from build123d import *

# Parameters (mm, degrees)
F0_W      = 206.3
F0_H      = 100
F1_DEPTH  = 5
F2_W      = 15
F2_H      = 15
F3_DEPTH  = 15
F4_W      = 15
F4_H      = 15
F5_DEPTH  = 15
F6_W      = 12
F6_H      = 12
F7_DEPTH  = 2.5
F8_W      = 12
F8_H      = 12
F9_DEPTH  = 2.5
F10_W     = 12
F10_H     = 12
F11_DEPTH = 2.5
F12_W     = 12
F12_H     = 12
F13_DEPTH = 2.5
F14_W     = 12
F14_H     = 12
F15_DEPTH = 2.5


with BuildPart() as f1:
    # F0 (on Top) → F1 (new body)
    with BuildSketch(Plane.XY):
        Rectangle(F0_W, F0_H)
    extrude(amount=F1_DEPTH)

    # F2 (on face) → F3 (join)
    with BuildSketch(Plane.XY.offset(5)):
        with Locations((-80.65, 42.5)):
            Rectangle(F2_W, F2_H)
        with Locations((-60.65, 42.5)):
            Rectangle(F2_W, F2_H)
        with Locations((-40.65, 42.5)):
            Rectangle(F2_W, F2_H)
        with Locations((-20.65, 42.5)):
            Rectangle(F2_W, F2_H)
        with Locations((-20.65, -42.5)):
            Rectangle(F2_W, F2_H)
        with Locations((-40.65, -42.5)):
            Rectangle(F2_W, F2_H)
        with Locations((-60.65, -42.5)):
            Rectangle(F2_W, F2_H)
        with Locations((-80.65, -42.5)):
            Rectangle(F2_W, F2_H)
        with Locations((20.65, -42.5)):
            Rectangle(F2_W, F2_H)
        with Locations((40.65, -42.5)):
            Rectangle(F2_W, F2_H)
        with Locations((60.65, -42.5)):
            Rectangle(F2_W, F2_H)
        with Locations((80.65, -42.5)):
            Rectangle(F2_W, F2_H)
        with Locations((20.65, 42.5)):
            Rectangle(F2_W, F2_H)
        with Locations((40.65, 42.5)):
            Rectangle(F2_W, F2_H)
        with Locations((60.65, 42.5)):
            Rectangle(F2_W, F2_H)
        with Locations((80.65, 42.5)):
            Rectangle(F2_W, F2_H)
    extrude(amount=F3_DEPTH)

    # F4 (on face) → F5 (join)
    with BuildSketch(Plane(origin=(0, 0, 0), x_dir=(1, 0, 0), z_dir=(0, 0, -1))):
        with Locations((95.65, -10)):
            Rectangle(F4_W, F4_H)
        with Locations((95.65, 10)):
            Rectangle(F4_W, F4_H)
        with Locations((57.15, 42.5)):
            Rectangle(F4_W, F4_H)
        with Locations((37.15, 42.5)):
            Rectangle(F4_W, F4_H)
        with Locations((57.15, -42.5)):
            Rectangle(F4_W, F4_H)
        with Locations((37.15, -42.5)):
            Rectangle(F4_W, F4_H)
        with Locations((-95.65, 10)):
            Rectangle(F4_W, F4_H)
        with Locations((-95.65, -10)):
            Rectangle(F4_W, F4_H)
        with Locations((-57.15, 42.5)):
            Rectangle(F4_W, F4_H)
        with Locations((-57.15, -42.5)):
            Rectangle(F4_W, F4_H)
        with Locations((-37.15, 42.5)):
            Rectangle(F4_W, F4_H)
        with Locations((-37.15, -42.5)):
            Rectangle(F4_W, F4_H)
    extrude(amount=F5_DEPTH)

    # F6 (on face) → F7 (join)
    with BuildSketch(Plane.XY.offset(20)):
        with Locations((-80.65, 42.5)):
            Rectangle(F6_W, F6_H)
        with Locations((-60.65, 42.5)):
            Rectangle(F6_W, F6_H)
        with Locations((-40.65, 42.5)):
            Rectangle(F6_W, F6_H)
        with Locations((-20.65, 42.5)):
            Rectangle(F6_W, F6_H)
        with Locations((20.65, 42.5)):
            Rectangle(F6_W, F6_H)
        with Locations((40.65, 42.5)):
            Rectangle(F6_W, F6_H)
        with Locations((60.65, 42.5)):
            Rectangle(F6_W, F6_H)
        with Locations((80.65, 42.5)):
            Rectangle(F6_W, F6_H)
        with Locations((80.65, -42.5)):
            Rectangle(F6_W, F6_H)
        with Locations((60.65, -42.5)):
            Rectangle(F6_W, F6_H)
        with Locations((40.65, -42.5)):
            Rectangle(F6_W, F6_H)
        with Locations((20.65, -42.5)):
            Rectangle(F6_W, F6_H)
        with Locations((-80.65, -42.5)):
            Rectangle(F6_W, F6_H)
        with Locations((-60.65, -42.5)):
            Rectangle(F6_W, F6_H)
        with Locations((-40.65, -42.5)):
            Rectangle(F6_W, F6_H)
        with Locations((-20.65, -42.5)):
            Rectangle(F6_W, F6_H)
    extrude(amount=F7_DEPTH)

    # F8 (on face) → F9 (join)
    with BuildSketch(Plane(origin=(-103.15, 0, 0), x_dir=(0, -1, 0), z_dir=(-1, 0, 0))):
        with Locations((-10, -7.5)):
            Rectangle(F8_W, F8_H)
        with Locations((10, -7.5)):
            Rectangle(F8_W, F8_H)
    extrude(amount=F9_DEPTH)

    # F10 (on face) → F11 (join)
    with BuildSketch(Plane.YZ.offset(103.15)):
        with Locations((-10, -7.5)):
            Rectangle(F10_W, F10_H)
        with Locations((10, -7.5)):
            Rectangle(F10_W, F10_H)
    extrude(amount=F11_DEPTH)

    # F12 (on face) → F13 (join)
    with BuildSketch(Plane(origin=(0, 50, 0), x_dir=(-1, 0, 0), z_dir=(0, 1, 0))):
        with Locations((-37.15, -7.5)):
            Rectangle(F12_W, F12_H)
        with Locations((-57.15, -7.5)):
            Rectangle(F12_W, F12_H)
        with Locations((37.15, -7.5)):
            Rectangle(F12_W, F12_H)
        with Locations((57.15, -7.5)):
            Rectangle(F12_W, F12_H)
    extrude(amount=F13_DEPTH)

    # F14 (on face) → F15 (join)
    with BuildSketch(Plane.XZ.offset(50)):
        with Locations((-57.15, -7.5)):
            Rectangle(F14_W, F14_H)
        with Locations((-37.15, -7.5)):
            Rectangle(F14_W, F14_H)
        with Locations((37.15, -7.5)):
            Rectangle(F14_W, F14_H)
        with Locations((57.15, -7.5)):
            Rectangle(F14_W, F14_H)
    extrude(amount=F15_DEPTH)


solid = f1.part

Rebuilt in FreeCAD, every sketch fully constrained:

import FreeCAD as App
import Part
import Sketcher
Q = App.Units.Quantity

doc = App.newDocument("Part")
body = doc.addObject("PartDesign::Body", "Body")

sketch1 = body.newObject("Sketcher::SketchObject", "Sketch")
sketch1.AttachmentSupport = (doc.getObject("XY_Plane"), [""])
sketch1.MapMode = "FlatFace"
sketch1.addGeometry([
    Part.LineSegment(App.Vector(-103, 50, 0), App.Vector(-103, -50, 0)),
    Part.LineSegment(App.Vector(-103, -50, 0), App.Vector(103, -50, 0)),
    Part.LineSegment(App.Vector(103, -50, 0), App.Vector(103, 50, 0)),
    Part.LineSegment(App.Vector(103, 50, 0), App.Vector(-103, 50, 0)),
], False)
sketch1.addConstraint([
    Sketcher.Constraint("Coincident", 0, 2, 1, 1),
    Sketcher.Constraint("Coincident", 1, 2, 2, 1),
    Sketcher.Constraint("Coincident", 2, 2, 3, 1),
    Sketcher.Constraint("Coincident", 3, 2, 0, 1),
    Sketcher.Constraint("Vertical", 0),
    Sketcher.Constraint("Horizontal", 1),
    Sketcher.Constraint("Vertical", 2),
    Sketcher.Constraint("Horizontal", 3),
    Sketcher.Constraint("Symmetric", 0, 2, 2, 2, -1, 1),
    Sketcher.Constraint("DistanceY", 0, 2, 0, 1, Q("100 mm")),
    Sketcher.Constraint("DistanceX", 1, 1, 1, 2, Q("206.3 mm")),
])
pad1 = body.newObject("PartDesign::Pad", "Pad")
pad1.Profile = sketch1
pad1.Length = 5

sketch2 = body.newObject("Sketcher::SketchObject", "Sketch001")
sketch2.AttachmentSupport = (doc.getObject("XY_Plane"), [""])
sketch2.MapMode = "FlatFace"
sketch2.AttachmentOffset = App.Placement(App.Vector(0, 0, 5), App.Rotation())
sketch2.addGeometry([
    Part.LineSegment(App.Vector(-88, 50, 0), App.Vector(-88, 35, 0)),
    Part.LineSegment(App.Vector(-88, 35, 0), App.Vector(-73, 35, 0)),
    Part.LineSegment(App.Vector(-73, 35, 0), App.Vector(-73, 50, 0)),
    Part.LineSegment(App.Vector(-73, 50, 0), App.Vector(-88, 50, 0)),
    Part.LineSegment(App.Vector(-68, 50, 0), App.Vector(-68, 35, 0)),
    Part.LineSegment(App.Vector(-68, 35, 0), App.Vector(-53, 35, 0)),
    Part.LineSegment(App.Vector(-53, 35, 0), App.Vector(-53, 50, 0)),
    Part.LineSegment(App.Vector(-53, 50, 0), App.Vector(-68, 50, 0)),
    Part.LineSegment(App.Vector(-48, 50, 0), App.Vector(-48, 35, 0)),
    Part.LineSegment(App.Vector(-48, 35, 0), App.Vector(-33, 35, 0)),
    Part.LineSegment(App.Vector(-33, 35, 0), App.Vector(-33, 50, 0)),
    Part.LineSegment(App.Vector(-33, 50, 0), App.Vector(-48, 50, 0)),
    Part.LineSegment(App.Vector(-28, 50, 0), App.Vector(-28, 35, 0)),
    Part.LineSegment(App.Vector(-28, 35, 0), App.Vector(-13, 35, 0)),
    Part.LineSegment(App.Vector(-13, 35, 0), App.Vector(-13, 50, 0)),
    Part.LineSegment(App.Vector(-13, 50, 0), App.Vector(-28, 50, 0)),
    Part.LineSegment(App.Vector(-28, -35, 0), App.Vector(-28, -50, 0)),
    Part.LineSegment(App.Vector(-28, -50, 0), App.Vector(-13, -50, 0)),
    Part.LineSegment(App.Vector(-13, -50, 0), App.Vector(-13, -35, 0)),
    Part.LineSegment(App.Vector(-13, -35, 0), App.Vector(-28, -35, 0)),
    Part.LineSegment(App.Vector(-48, -35, 0), App.Vector(-48, -50, 0)),
    Part.LineSegment(App.Vector(-48, -50, 0), App.Vector(-33, -50, 0)),
    Part.LineSegment(App.Vector(-33, -50, 0), App.Vector(-33, -35, 0)),
    Part.LineSegment(App.Vector(-33, -35, 0), App.Vector(-48, -35, 0)),
    Part.LineSegment(App.Vector(-68, -35, 0), App.Vector(-68, -50, 0)),
    Part.LineSegment(App.Vector(-68, -50, 0), App.Vector(-53, -50, 0)),
    Part.LineSegment(App.Vector(-53, -50, 0), App.Vector(-53, -35, 0)),
    Part.LineSegment(App.Vector(-53, -35, 0), App.Vector(-68, -35, 0)),
    Part.LineSegment(App.Vector(-88, -35, 0), App.Vector(-88, -50, 0)),
    Part.LineSegment(App.Vector(-88, -50, 0), App.Vector(-73, -50, 0)),
    Part.LineSegment(App.Vector(-73, -50, 0), App.Vector(-73, -35, 0)),
    Part.LineSegment(App.Vector(-73, -35, 0), App.Vector(-88, -35, 0)),
    Part.LineSegment(App.Vector(13, -35, 0), App.Vector(13, -50, 0)),
    Part.LineSegment(App.Vector(13, -50, 0), App.Vector(28, -50, 0)),
    Part.LineSegment(App.Vector(28, -50, 0), App.Vector(28, -35, 0)),
    Part.LineSegment(App.Vector(28, -35, 0), App.Vector(13, -35, 0)),
    Part.LineSegment(App.Vector(33, -35, 0), App.Vector(33, -50, 0)),
    Part.LineSegment(App.Vector(33, -50, 0), App.Vector(48, -50, 0)),
    Part.LineSegment(App.Vector(48, -50, 0), App.Vector(48, -35, 0)),
    Part.LineSegment(App.Vector(48, -35, 0), App.Vector(33, -35, 0)),
    Part.LineSegment(App.Vector(53, -35, 0), App.Vector(53, -50, 0)),
    Part.LineSegment(App.Vector(53, -50, 0), App.Vector(68, -50, 0)),
    Part.LineSegment(App.Vector(68, -50, 0), App.Vector(68, -35, 0)),
    Part.LineSegment(App.Vector(68, -35, 0), App.Vector(53, -35, 0)),
    Part.LineSegment(App.Vector(73, -35, 0), App.Vector(73, -50, 0)),
    Part.LineSegment(App.Vector(73, -50, 0), App.Vector(88, -50, 0)),
    Part.LineSegment(App.Vector(88, -50, 0), App.Vector(88, -35, 0)),
    Part.LineSegment(App.Vector(88, -35, 0), App.Vector(73, -35, 0)),
    Part.LineSegment(App.Vector(13, 50, 0), App.Vector(13, 35, 0)),
    Part.LineSegment(App.Vector(13, 35, 0), App.Vector(28, 35, 0)),
    Part.LineSegment(App.Vector(28, 35, 0), App.Vector(28, 50, 0)),
    Part.LineSegment(App.Vector(28, 50, 0), App.Vector(13, 50, 0)),
    Part.LineSegment(App.Vector(33, 50, 0), App.Vector(33, 35, 0)),
    Part.LineSegment(App.Vector(33, 35, 0), App.Vector(48, 35, 0)),
    Part.LineSegment(App.Vector(48, 35, 0), App.Vector(48, 50, 0)),
    Part.LineSegment(App.Vector(48, 50, 0), App.Vector(33, 50, 0)),
    Part.LineSegment(App.Vector(53, 50, 0), App.Vector(53, 35, 0)),
    Part.LineSegment(App.Vector(53, 35, 0), App.Vector(68, 35, 0)),
    Part.LineSegment(App.Vector(68, 35, 0), App.Vector(68, 50, 0)),
    Part.LineSegment(App.Vector(68, 50, 0), App.Vector(53, 50, 0)),
    Part.LineSegment(App.Vector(73, 50, 0), App.Vector(73, 35, 0)),
    Part.LineSegment(App.Vector(73, 35, 0), App.Vector(88, 35, 0)),
    Part.LineSegment(App.Vector(88, 35, 0), App.Vector(88, 50, 0)),
    Part.LineSegment(App.Vector(88, 50, 0), App.Vector(73, 50, 0)),
], False)
sketch2.addConstraint([
    Sketcher.Constraint("Coincident", 0, 2, 1, 1),
    Sketcher.Constraint("Coincident", 1, 2, 2, 1),
    Sketcher.Constraint("Coincident", 2, 2, 3, 1),
    Sketcher.Constraint("Coincident", 3, 2, 0, 1),
    Sketcher.Constraint("Coincident", 4, 2, 5, 1),
    Sketcher.Constraint("Coincident", 5, 2, 6, 1),
    Sketcher.Constraint("Coincident", 6, 2, 7, 1),
    Sketcher.Constraint("Coincident", 7, 2, 4, 1),
    Sketcher.Constraint("Coincident", 8, 2, 9, 1),
    Sketcher.Constraint("Coincident", 9, 2, 10, 1),
    Sketcher.Constraint("Coincident", 10, 2, 11, 1),
    Sketcher.Constraint("Coincident", 11, 2, 8, 1),
    Sketcher.Constraint("Coincident", 12, 2, 13, 1),
    Sketcher.Constraint("Coincident", 13, 2, 14, 1),
    Sketcher.Constraint("Coincident", 14, 2, 15, 1),
    Sketcher.Constraint("Coincident", 15, 2, 12, 1),
    Sketcher.Constraint("Coincident", 16, 2, 17, 1),
    Sketcher.Constraint("Coincident", 17, 2, 18, 1),
    Sketcher.Constraint("Coincident", 18, 2, 19, 1),
    Sketcher.Constraint("Coincident", 19, 2, 16, 1),
    Sketcher.Constraint("Coincident", 20, 2, 21, 1),
    Sketcher.Constraint("Coincident", 21, 2, 22, 1),
    Sketcher.Constraint("Coincident", 22, 2, 23, 1),
    Sketcher.Constraint("Coincident", 23, 2, 20, 1),
    Sketcher.Constraint("Coincident", 24, 2, 25, 1),
    Sketcher.Constraint("Coincident", 25, 2, 26, 1),
    Sketcher.Constraint("Coincident", 26, 2, 27, 1),
    Sketcher.Constraint("Coincident", 27, 2, 24, 1),
    Sketcher.Constraint("Coincident", 28, 2, 29, 1),
    Sketcher.Constraint("Coincident", 29, 2, 30, 1),
    Sketcher.Constraint("Coincident", 30, 2, 31, 1),
    Sketcher.Constraint("Coincident", 31, 2, 28, 1),
    Sketcher.Constraint("Coincident", 32, 2, 33, 1),
    Sketcher.Constraint("Coincident", 33, 2, 34, 1),
    Sketcher.Constraint("Coincident", 34, 2, 35, 1),
    Sketcher.Constraint("Coincident", 35, 2, 32, 1),
    Sketcher.Constraint("Coincident", 36, 2, 37, 1),
    Sketcher.Constraint("Coincident", 37, 2, 38, 1),
    Sketcher.Constraint("Coincident", 38, 2, 39, 1),
    Sketcher.Constraint("Coincident", 39, 2, 36, 1),
    Sketcher.Constraint("Coincident", 40, 2, 41, 1),
    Sketcher.Constraint("Coincident", 41, 2, 42, 1),
    Sketcher.Constraint("Coincident", 42, 2, 43, 1),
    Sketcher.Constraint("Coincident", 43, 2, 40, 1),
    Sketcher.Constraint("Coincident", 44, 2, 45, 1),
    Sketcher.Constraint("Coincident", 45, 2, 46, 1),
    Sketcher.Constraint("Coincident", 46, 2, 47, 1),
    Sketcher.Constraint("Coincident", 47, 2, 44, 1),
    Sketcher.Constraint("Coincident", 48, 2, 49, 1),
    Sketcher.Constraint("Coincident", 49, 2, 50, 1),
    Sketcher.Constraint("Coincident", 50, 2, 51, 1),
    Sketcher.Constraint("Coincident", 51, 2, 48, 1),
    Sketcher.Constraint("Coincident", 52, 2, 53, 1),
    Sketcher.Constraint("Coincident", 53, 2, 54, 1),
    Sketcher.Constraint("Coincident", 54, 2, 55, 1),
    Sketcher.Constraint("Coincident", 55, 2, 52, 1),
    Sketcher.Constraint("Coincident", 56, 2, 57, 1),
    Sketcher.Constraint("Coincident", 57, 2, 58, 1),
    Sketcher.Constraint("Coincident", 58, 2, 59, 1),
    Sketcher.Constraint("Coincident", 59, 2, 56, 1),
    Sketcher.Constraint("Coincident", 60, 2, 61, 1),
    Sketcher.Constraint("Coincident", 61, 2, 62, 1),
    Sketcher.Constraint("Coincident", 62, 2, 63, 1),
    Sketcher.Constraint("Coincident", 63, 2, 60, 1),
    Sketcher.Constraint("Vertical", 0),
    Sketcher.Constraint("Horizontal", 1),
    Sketcher.Constraint("Vertical", 2),
    Sketcher.Constraint("Horizontal", 3),
    Sketcher.Constraint("Vertical", 4),
    Sketcher.Constraint("Horizontal", 5),
    Sketcher.Constraint("Vertical", 6),
    Sketcher.Constraint("Horizontal", 7),
    Sketcher.Constraint("Vertical", 8),
    Sketcher.Constraint("Horizontal", 9),
    Sketcher.Constraint("Vertical", 10),
    Sketcher.Constraint("Horizontal", 11),
    Sketcher.Constraint("Vertical", 12),
    Sketcher.Constraint("Horizontal", 13),
    Sketcher.Constraint("Vertical", 14),
    Sketcher.Constraint("Horizontal", 15),
    Sketcher.Constraint("Vertical", 16),
    Sketcher.Constraint("Horizontal", 17),
    Sketcher.Constraint("Vertical", 18),
    Sketcher.Constraint("Horizontal", 19),
    Sketcher.Constraint("Vertical", 20),
    Sketcher.Constraint("Horizontal", 21),
    Sketcher.Constraint("Vertical", 22),
    Sketcher.Constraint("Horizontal", 23),
    Sketcher.Constraint("Vertical", 24),
    Sketcher.Constraint("Horizontal", 25),
    Sketcher.Constraint("Vertical", 26),
    Sketcher.Constraint("Horizontal", 27),
    Sketcher.Constraint("Vertical", 28),
    Sketcher.Constraint("Horizontal", 29),
    Sketcher.Constraint("Vertical", 30),
    Sketcher.Constraint("Horizontal", 31),
    Sketcher.Constraint("Vertical", 32),
    Sketcher.Constraint("Horizontal", 33),
    Sketcher.Constraint("Vertical", 34),
    Sketcher.Constraint("Horizontal", 35),
    Sketcher.Constraint("Vertical", 36),
    Sketcher.Constraint("Horizontal", 37),
    Sketcher.Constraint("Vertical", 38),
    Sketcher.Constraint("Horizontal", 39),
    Sketcher.Constraint("Vertical", 40),
    Sketcher.Constraint("Horizontal", 41),
    Sketcher.Constraint("Vertical", 42),
    Sketcher.Constraint("Horizontal", 43),
    Sketcher.Constraint("Vertical", 44),
    Sketcher.Constraint("Horizontal", 45),
    Sketcher.Constraint("Vertical", 46),
    Sketcher.Constraint("Horizontal", 47),
    Sketcher.Constraint("Vertical", 48),
    Sketcher.Constraint("Horizontal", 49),
    Sketcher.Constraint("Vertical", 50),
    Sketcher.Constraint("Horizontal", 51),
    Sketcher.Constraint("Vertical", 52),
    Sketcher.Constraint("Horizontal", 53),
    Sketcher.Constraint("Vertical", 54),
    Sketcher.Constraint("Horizontal", 55),
    Sketcher.Constraint("Vertical", 56),
    Sketcher.Constraint("Horizontal", 57),
    Sketcher.Constraint("Vertical", 58),
    Sketcher.Constraint("Horizontal", 59),
    Sketcher.Constraint("Vertical", 60),
    Sketcher.Constraint("Horizontal", 61),
    Sketcher.Constraint("Vertical", 62),
    Sketcher.Constraint("Horizontal", 63),
    Sketcher.Constraint("Symmetric", 14, 2, 32, 2, -1, 1),
    Sketcher.Constraint("Symmetric", 12, 2, 34, 2, -1, 1),
    Sketcher.Constraint("Symmetric", 10, 2, 36, 2, -1, 1),
    Sketcher.Constraint("Symmetric", 8, 2, 38, 2, -1, 1),
    Sketcher.Constraint("Symmetric", 6, 2, 40, 2, -1, 1),
    Sketcher.Constraint("Symmetric", 4, 2, 42, 2, -1, 1),
    Sketcher.Constraint("Symmetric", 2, 2, 44, 2, -1, 1),
    Sketcher.Constraint("Symmetric", 0, 2, 46, 2, -1, 1),
    Sketcher.Constraint("Symmetric", 18, 2, 48, 2, -1, 1),
    Sketcher.Constraint("Symmetric", 16, 2, 50, 2, -1, 1),
    Sketcher.Constraint("Symmetric", 22, 2, 52, 2, -1, 1),
    Sketcher.Constraint("Symmetric", 20, 2, 54, 2, -1, 1),
    Sketcher.Constraint("Symmetric", 26, 2, 56, 2, -1, 1),
    Sketcher.Constraint("Symmetric", 24, 2, 58, 2, -1, 1),
    Sketcher.Constraint("Symmetric", 30, 2, 60, 2, -1, 1),
    Sketcher.Constraint("Symmetric", 28, 2, 62, 2, -1, 1),
    Sketcher.Constraint("Symmetric", 17, 2, 32, 2, -2),
    Sketcher.Constraint("Symmetric", 19, 2, 34, 2, -2),
    Sketcher.Constraint("Symmetric", 21, 2, 36, 2, -2),
    Sketcher.Constraint("Symmetric", 23, 2, 38, 2, -2),
    Sketcher.Constraint("Symmetric", 25, 2, 40, 2, -2),
    Sketcher.Constraint("Symmetric", 27, 2, 42, 2, -2),
    Sketcher.Constraint("Symmetric", 29, 2, 44, 2, -2),
    Sketcher.Constraint("Symmetric", 31, 2, 46, 2, -2),
    Sketcher.Constraint("Horizontal", 1, 2, 4, 2),
    Sketcher.Constraint("Horizontal", 3, 2, 6, 2),
    Sketcher.Constraint("Horizontal", 5, 2, 8, 2),
    Sketcher.Constraint("Horizontal", 7, 2, 10, 2),
    Sketcher.Constraint("Horizontal", 9, 2, 12, 2),
    Sketcher.Constraint("Horizontal", 11, 2, 14, 2),
    Sketcher.Constraint("Equal", 3, 5),
    Sketcher.Constraint("Equal", 7, 9),
    Sketcher.Constraint("Equal", 11, 13),
    Sketcher.Constraint("Equal", 63, 0),
    Sketcher.Constraint("DistanceX", 1, 1, 1, 2, Q("15 mm")),
    Sketcher.Constraint("DistanceY", -1, 1, 0, 2, Q("35 mm")),
    Sketcher.Constraint("DistanceX", 0, 2, -1, 1, Q("88.15 mm")),
    Sketcher.Constraint("DistanceX", 4, 2, -1, 1, Q("68.15 mm")),
    Sketcher.Constraint("DistanceX", 8, 2, -1, 1, Q("48.15 mm")),
    Sketcher.Constraint("DistanceX", 12, 2, -1, 1, Q("28.15 mm")),
])
pad2 = body.newObject("PartDesign::Pad", "Pad001")
pad2.Profile = sketch2
pad2.Length = 15

sketch3 = body.newObject("Sketcher::SketchObject", "Sketch002")
sketch3.AttachmentSupport = (doc.getObject("XY_Plane"), [""])
sketch3.MapMode = "FlatFace"
sketch3.addGeometry([
    Part.LineSegment(App.Vector(88, 2, 0), App.Vector(88, 18, 0)),
    Part.LineSegment(App.Vector(88, 18, 0), App.Vector(103, 18, 0)),
    Part.LineSegment(App.Vector(103, 18, 0), App.Vector(103, 2, 0)),
    Part.LineSegment(App.Vector(103, 2, 0), App.Vector(88, 2, 0)),
    Part.LineSegment(App.Vector(88, -18, 0), App.Vector(88, -2, 0)),
    Part.LineSegment(App.Vector(88, -2, 0), App.Vector(103, -2, 0)),
    Part.LineSegment(App.Vector(103, -2, 0), App.Vector(103, -18, 0)),
    Part.LineSegment(App.Vector(103, -18, 0), App.Vector(88, -18, 0)),
    Part.LineSegment(App.Vector(50, -50, 0), App.Vector(50, -35, 0)),
    Part.LineSegment(App.Vector(50, -35, 0), App.Vector(65, -35, 0)),
    Part.LineSegment(App.Vector(65, -35, 0), App.Vector(65, -50, 0)),
    Part.LineSegment(App.Vector(65, -50, 0), App.Vector(50, -50, 0)),
    Part.LineSegment(App.Vector(30, -50, 0), App.Vector(30, -35, 0)),
    Part.LineSegment(App.Vector(30, -35, 0), App.Vector(45, -35, 0)),
    Part.LineSegment(App.Vector(45, -35, 0), App.Vector(45, -50, 0)),
    Part.LineSegment(App.Vector(45, -50, 0), App.Vector(30, -50, 0)),
    Part.LineSegment(App.Vector(50, 35, 0), App.Vector(50, 50, 0)),
    Part.LineSegment(App.Vector(50, 50, 0), App.Vector(65, 50, 0)),
    Part.LineSegment(App.Vector(65, 50, 0), App.Vector(65, 35, 0)),
    Part.LineSegment(App.Vector(65, 35, 0), App.Vector(50, 35, 0)),
    Part.LineSegment(App.Vector(30, 35, 0), App.Vector(30, 50, 0)),
    Part.LineSegment(App.Vector(30, 50, 0), App.Vector(45, 50, 0)),
    Part.LineSegment(App.Vector(45, 50, 0), App.Vector(45, 35, 0)),
    Part.LineSegment(App.Vector(45, 35, 0), App.Vector(30, 35, 0)),
    Part.LineSegment(App.Vector(-103, -18, 0), App.Vector(-103, -2, 0)),
    Part.LineSegment(App.Vector(-103, -2, 0), App.Vector(-88, -2, 0)),
    Part.LineSegment(App.Vector(-88, -2, 0), App.Vector(-88, -18, 0)),
    Part.LineSegment(App.Vector(-88, -18, 0), App.Vector(-103, -18, 0)),
    Part.LineSegment(App.Vector(-103, 2, 0), App.Vector(-103, 18, 0)),
    Part.LineSegment(App.Vector(-103, 18, 0), App.Vector(-88, 18, 0)),
    Part.LineSegment(App.Vector(-88, 18, 0), App.Vector(-88, 2, 0)),
    Part.LineSegment(App.Vector(-88, 2, 0), App.Vector(-103, 2, 0)),
    Part.LineSegment(App.Vector(-65, -50, 0), App.Vector(-65, -35, 0)),
    Part.LineSegment(App.Vector(-65, -35, 0), App.Vector(-50, -35, 0)),
    Part.LineSegment(App.Vector(-50, -35, 0), App.Vector(-50, -50, 0)),
    Part.LineSegment(App.Vector(-50, -50, 0), App.Vector(-65, -50, 0)),
    Part.LineSegment(App.Vector(-65, 35, 0), App.Vector(-65, 50, 0)),
    Part.LineSegment(App.Vector(-65, 50, 0), App.Vector(-50, 50, 0)),
    Part.LineSegment(App.Vector(-50, 50, 0), App.Vector(-50, 35, 0)),
    Part.LineSegment(App.Vector(-50, 35, 0), App.Vector(-65, 35, 0)),
    Part.LineSegment(App.Vector(-45, -50, 0), App.Vector(-45, -35, 0)),
    Part.LineSegment(App.Vector(-45, -35, 0), App.Vector(-30, -35, 0)),
    Part.LineSegment(App.Vector(-30, -35, 0), App.Vector(-30, -50, 0)),
    Part.LineSegment(App.Vector(-30, -50, 0), App.Vector(-45, -50, 0)),
    Part.LineSegment(App.Vector(-45, 35, 0), App.Vector(-45, 50, 0)),
    Part.LineSegment(App.Vector(-45, 50, 0), App.Vector(-30, 50, 0)),
    Part.LineSegment(App.Vector(-30, 50, 0), App.Vector(-30, 35, 0)),
    Part.LineSegment(App.Vector(-30, 35, 0), App.Vector(-45, 35, 0)),
], False)
sketch3.addConstraint([
    Sketcher.Constraint("Coincident", 0, 2, 1, 1),
    Sketcher.Constraint("Coincident", 1, 2, 2, 1),
    Sketcher.Constraint("Coincident", 2, 2, 3, 1),
    Sketcher.Constraint("Coincident", 3, 2, 0, 1),
    Sketcher.Constraint("Coincident", 4, 2, 5, 1),
    Sketcher.Constraint("Coincident", 5, 2, 6, 1),
    Sketcher.Constraint("Coincident", 6, 2, 7, 1),
    Sketcher.Constraint("Coincident", 7, 2, 4, 1),
    Sketcher.Constraint("Coincident", 8, 2, 9, 1),
    Sketcher.Constraint("Coincident", 9, 2, 10, 1),
    Sketcher.Constraint("Coincident", 10, 2, 11, 1),
    Sketcher.Constraint("Coincident", 11, 2, 8, 1),
    Sketcher.Constraint("Coincident", 12, 2, 13, 1),
    Sketcher.Constraint("Coincident", 13, 2, 14, 1),
    Sketcher.Constraint("Coincident", 14, 2, 15, 1),
    Sketcher.Constraint("Coincident", 15, 2, 12, 1),
    Sketcher.Constraint("Coincident", 16, 2, 17, 1),
    Sketcher.Constraint("Coincident", 17, 2, 18, 1),
    Sketcher.Constraint("Coincident", 18, 2, 19, 1),
    Sketcher.Constraint("Coincident", 19, 2, 16, 1),
    Sketcher.Constraint("Coincident", 20, 2, 21, 1),
    Sketcher.Constraint("Coincident", 21, 2, 22, 1),
    Sketcher.Constraint("Coincident", 22, 2, 23, 1),
    Sketcher.Constraint("Coincident", 23, 2, 20, 1),
    Sketcher.Constraint("Coincident", 24, 2, 25, 1),
    Sketcher.Constraint("Coincident", 25, 2, 26, 1),
    Sketcher.Constraint("Coincident", 26, 2, 27, 1),
    Sketcher.Constraint("Coincident", 27, 2, 24, 1),
    Sketcher.Constraint("Coincident", 28, 2, 29, 1),
    Sketcher.Constraint("Coincident", 29, 2, 30, 1),
    Sketcher.Constraint("Coincident", 30, 2, 31, 1),
    Sketcher.Constraint("Coincident", 31, 2, 28, 1),
    Sketcher.Constraint("Coincident", 32, 2, 33, 1),
    Sketcher.Constraint("Coincident", 33, 2, 34, 1),
    Sketcher.Constraint("Coincident", 34, 2, 35, 1),
    Sketcher.Constraint("Coincident", 35, 2, 32, 1),
    Sketcher.Constraint("Coincident", 36, 2, 37, 1),
    Sketcher.Constraint("Coincident", 37, 2, 38, 1),
    Sketcher.Constraint("Coincident", 38, 2, 39, 1),
    Sketcher.Constraint("Coincident", 39, 2, 36, 1),
    Sketcher.Constraint("Coincident", 40, 2, 41, 1),
    Sketcher.Constraint("Coincident", 41, 2, 42, 1),
    Sketcher.Constraint("Coincident", 42, 2, 43, 1),
    Sketcher.Constraint("Coincident", 43, 2, 40, 1),
    Sketcher.Constraint("Coincident", 44, 2, 45, 1),
    Sketcher.Constraint("Coincident", 45, 2, 46, 1),
    Sketcher.Constraint("Coincident", 46, 2, 47, 1),
    Sketcher.Constraint("Coincident", 47, 2, 44, 1),
    Sketcher.Constraint("Vertical", 0),
    Sketcher.Constraint("Horizontal", 1),
    Sketcher.Constraint("Vertical", 2),
    Sketcher.Constraint("Horizontal", 3),
    Sketcher.Constraint("Vertical", 4),
    Sketcher.Constraint("Horizontal", 5),
    Sketcher.Constraint("Vertical", 6),
    Sketcher.Constraint("Horizontal", 7),
    Sketcher.Constraint("Vertical", 8),
    Sketcher.Constraint("Horizontal", 9),
    Sketcher.Constraint("Vertical", 10),
    Sketcher.Constraint("Horizontal", 11),
    Sketcher.Constraint("Vertical", 12),
    Sketcher.Constraint("Horizontal", 13),
    Sketcher.Constraint("Vertical", 14),
    Sketcher.Constraint("Horizontal", 15),
    Sketcher.Constraint("Vertical", 16),
    Sketcher.Constraint("Horizontal", 17),
    Sketcher.Constraint("Vertical", 18),
    Sketcher.Constraint("Horizontal", 19),
    Sketcher.Constraint("Vertical", 20),
    Sketcher.Constraint("Horizontal", 21),
    Sketcher.Constraint("Vertical", 22),
    Sketcher.Constraint("Horizontal", 23),
    Sketcher.Constraint("Vertical", 24),
    Sketcher.Constraint("Horizontal", 25),
    Sketcher.Constraint("Vertical", 26),
    Sketcher.Constraint("Horizontal", 27),
    Sketcher.Constraint("Vertical", 28),
    Sketcher.Constraint("Horizontal", 29),
    Sketcher.Constraint("Vertical", 30),
    Sketcher.Constraint("Horizontal", 31),
    Sketcher.Constraint("Vertical", 32),
    Sketcher.Constraint("Horizontal", 33),
    Sketcher.Constraint("Vertical", 34),
    Sketcher.Constraint("Horizontal", 35),
    Sketcher.Constraint("Vertical", 36),
    Sketcher.Constraint("Horizontal", 37),
    Sketcher.Constraint("Vertical", 38),
    Sketcher.Constraint("Horizontal", 39),
    Sketcher.Constraint("Vertical", 40),
    Sketcher.Constraint("Horizontal", 41),
    Sketcher.Constraint("Vertical", 42),
    Sketcher.Constraint("Horizontal", 43),
    Sketcher.Constraint("Vertical", 44),
    Sketcher.Constraint("Horizontal", 45),
    Sketcher.Constraint("Vertical", 46),
    Sketcher.Constraint("Horizontal", 47),
    Sketcher.Constraint("Symmetric", 2, 2, 24, 2, -1, 1),
    Sketcher.Constraint("Symmetric", 0, 2, 26, 2, -1, 1),
    Sketcher.Constraint("Symmetric", 6, 2, 28, 2, -1, 1),
    Sketcher.Constraint("Symmetric", 4, 2, 30, 2, -1, 1),
    Sketcher.Constraint("Symmetric", 18, 2, 32, 2, -1, 1),
    Sketcher.Constraint("Symmetric", 16, 2, 34, 2, -1, 1),
    Sketcher.Constraint("Symmetric", 10, 2, 36, 2, -1, 1),
    Sketcher.Constraint("Symmetric", 8, 2, 38, 2, -1, 1),
    Sketcher.Constraint("Symmetric", 22, 2, 40, 2, -1, 1),
    Sketcher.Constraint("Symmetric", 20, 2, 42, 2, -1, 1),
    Sketcher.Constraint("Symmetric", 14, 2, 44, 2, -1, 1),
    Sketcher.Constraint("Symmetric", 12, 2, 46, 2, -1, 1),
    Sketcher.Constraint("Symmetric", 5, 2, 24, 2, -2),
    Sketcher.Constraint("Symmetric", 7, 2, 26, 2, -2),
    Sketcher.Constraint("Symmetric", 9, 2, 32, 2, -2),
    Sketcher.Constraint("Symmetric", 11, 2, 34, 2, -2),
    Sketcher.Constraint("Symmetric", 13, 2, 40, 2, -2),
    Sketcher.Constraint("Symmetric", 15, 2, 42, 2, -2),
    Sketcher.Constraint("Horizontal", 9, 2, 12, 2),
    Sketcher.Constraint("Horizontal", 11, 2, 14, 2),
    Sketcher.Constraint("Equal", 7, 9),
    Sketcher.Constraint("Equal", 11, 13),
    Sketcher.Constraint("Equal", 47, 0),
    Sketcher.Constraint("Equal", 6, 8),
    Sketcher.Constraint("DistanceX", 1, 1, 1, 2, Q("15 mm")),
    Sketcher.Constraint("DistanceY", 8, 2, -1, 1, Q("35 mm")),
    Sketcher.Constraint("DistanceY", 4, 2, 3, 2, Q("5 mm")),
    Sketcher.Constraint("DistanceX", 12, 2, 8, 2, Q("20 mm")),
    Sketcher.Constraint("DistanceX", 8, 2, 7, 2, Q("38.5 mm")),
    Sketcher.Constraint("DistanceX", 24, 2, 12, 2, Q("132.8 mm")),
])
pad3 = body.newObject("PartDesign::Pad", "Pad002")
pad3.Profile = sketch3
pad3.Length = 15
pad3.Reversed = True

sketch4 = body.newObject("Sketcher::SketchObject", "Sketch003")
sketch4.AttachmentSupport = (doc.getObject("XY_Plane"), [""])
sketch4.MapMode = "FlatFace"
sketch4.AttachmentOffset = App.Placement(App.Vector(0, 0, 20), App.Rotation())
sketch4.addGeometry([
    Part.LineSegment(App.Vector(-87, 48, 0), App.Vector(-87, 36, 0)),
    Part.LineSegment(App.Vector(-87, 36, 0), App.Vector(-75, 36, 0)),
    Part.LineSegment(App.Vector(-75, 36, 0), App.Vector(-75, 48, 0)),
    Part.LineSegment(App.Vector(-75, 48, 0), App.Vector(-87, 48, 0)),
    Part.LineSegment(App.Vector(-67, 48, 0), App.Vector(-67, 36, 0)),
    Part.LineSegment(App.Vector(-67, 36, 0), App.Vector(-55, 36, 0)),
    Part.LineSegment(App.Vector(-55, 36, 0), App.Vector(-55, 48, 0)),
    Part.LineSegment(App.Vector(-55, 48, 0), App.Vector(-67, 48, 0)),
    Part.LineSegment(App.Vector(-47, 48, 0), App.Vector(-47, 36, 0)),
    Part.LineSegment(App.Vector(-47, 36, 0), App.Vector(-35, 36, 0)),
    Part.LineSegment(App.Vector(-35, 36, 0), App.Vector(-35, 48, 0)),
    Part.LineSegment(App.Vector(-35, 48, 0), App.Vector(-47, 48, 0)),
    Part.LineSegment(App.Vector(-27, 48, 0), App.Vector(-27, 36, 0)),
    Part.LineSegment(App.Vector(-27, 36, 0), App.Vector(-15, 36, 0)),
    Part.LineSegment(App.Vector(-15, 36, 0), App.Vector(-15, 48, 0)),
    Part.LineSegment(App.Vector(-15, 48, 0), App.Vector(-27, 48, 0)),
    Part.LineSegment(App.Vector(15, 48, 0), App.Vector(15, 36, 0)),
    Part.LineSegment(App.Vector(15, 36, 0), App.Vector(27, 36, 0)),
    Part.LineSegment(App.Vector(27, 36, 0), App.Vector(27, 48, 0)),
    Part.LineSegment(App.Vector(27, 48, 0), App.Vector(15, 48, 0)),
    Part.LineSegment(App.Vector(35, 48, 0), App.Vector(35, 36, 0)),
    Part.LineSegment(App.Vector(35, 36, 0), App.Vector(47, 36, 0)),
    Part.LineSegment(App.Vector(47, 36, 0), App.Vector(47, 48, 0)),
    Part.LineSegment(App.Vector(47, 48, 0), App.Vector(35, 48, 0)),
    Part.LineSegment(App.Vector(55, 48, 0), App.Vector(55, 36, 0)),
    Part.LineSegment(App.Vector(55, 36, 0), App.Vector(67, 36, 0)),
    Part.LineSegment(App.Vector(67, 36, 0), App.Vector(67, 48, 0)),
    Part.LineSegment(App.Vector(67, 48, 0), App.Vector(55, 48, 0)),
    Part.LineSegment(App.Vector(75, 48, 0), App.Vector(75, 36, 0)),
    Part.LineSegment(App.Vector(75, 36, 0), App.Vector(87, 36, 0)),
    Part.LineSegment(App.Vector(87, 36, 0), App.Vector(87, 48, 0)),
    Part.LineSegment(App.Vector(87, 48, 0), App.Vector(75, 48, 0)),
    Part.LineSegment(App.Vector(75, -36, 0), App.Vector(75, -48, 0)),
    Part.LineSegment(App.Vector(75, -48, 0), App.Vector(87, -48, 0)),
    Part.LineSegment(App.Vector(87, -48, 0), App.Vector(87, -36, 0)),
    Part.LineSegment(App.Vector(87, -36, 0), App.Vector(75, -36, 0)),
    Part.LineSegment(App.Vector(55, -36, 0), App.Vector(55, -48, 0)),
    Part.LineSegment(App.Vector(55, -48, 0), App.Vector(67, -48, 0)),
    Part.LineSegment(App.Vector(67, -48, 0), App.Vector(67, -36, 0)),
    Part.LineSegment(App.Vector(67, -36, 0), App.Vector(55, -36, 0)),
    Part.LineSegment(App.Vector(35, -36, 0), App.Vector(35, -48, 0)),
    Part.LineSegment(App.Vector(35, -48, 0), App.Vector(47, -48, 0)),
    Part.LineSegment(App.Vector(47, -48, 0), App.Vector(47, -36, 0)),
    Part.LineSegment(App.Vector(47, -36, 0), App.Vector(35, -36, 0)),
    Part.LineSegment(App.Vector(15, -36, 0), App.Vector(15, -48, 0)),
    Part.LineSegment(App.Vector(15, -48, 0), App.Vector(27, -48, 0)),
    Part.LineSegment(App.Vector(27, -48, 0), App.Vector(27, -36, 0)),
    Part.LineSegment(App.Vector(27, -36, 0), App.Vector(15, -36, 0)),
    Part.LineSegment(App.Vector(-87, -36, 0), App.Vector(-87, -48, 0)),
    Part.LineSegment(App.Vector(-87, -48, 0), App.Vector(-75, -48, 0)),
    Part.LineSegment(App.Vector(-75, -48, 0), App.Vector(-75, -36, 0)),
    Part.LineSegment(App.Vector(-75, -36, 0), App.Vector(-87, -36, 0)),
    Part.LineSegment(App.Vector(-67, -36, 0), App.Vector(-67, -48, 0)),
    Part.LineSegment(App.Vector(-67, -48, 0), App.Vector(-55, -48, 0)),
    Part.LineSegment(App.Vector(-55, -48, 0), App.Vector(-55, -36, 0)),
    Part.LineSegment(App.Vector(-55, -36, 0), App.Vector(-67, -36, 0)),
    Part.LineSegment(App.Vector(-47, -36, 0), App.Vector(-47, -48, 0)),
    Part.LineSegment(App.Vector(-47, -48, 0), App.Vector(-35, -48, 0)),
    Part.LineSegment(App.Vector(-35, -48, 0), App.Vector(-35, -36, 0)),
    Part.LineSegment(App.Vector(-35, -36, 0), App.Vector(-47, -36, 0)),
    Part.LineSegment(App.Vector(-27, -36, 0), App.Vector(-27, -48, 0)),
    Part.LineSegment(App.Vector(-27, -48, 0), App.Vector(-15, -48, 0)),
    Part.LineSegment(App.Vector(-15, -48, 0), App.Vector(-15, -36, 0)),
    Part.LineSegment(App.Vector(-15, -36, 0), App.Vector(-27, -36, 0)),
], False)
sketch4.addConstraint([
    Sketcher.Constraint("Coincident", 0, 2, 1, 1),
    Sketcher.Constraint("Coincident", 1, 2, 2, 1),
    Sketcher.Constraint("Coincident", 2, 2, 3, 1),
    Sketcher.Constraint("Coincident", 3, 2, 0, 1),
    Sketcher.Constraint("Coincident", 4, 2, 5, 1),
    Sketcher.Constraint("Coincident", 5, 2, 6, 1),
    Sketcher.Constraint("Coincident", 6, 2, 7, 1),
    Sketcher.Constraint("Coincident", 7, 2, 4, 1),
    Sketcher.Constraint("Coincident", 8, 2, 9, 1),
    Sketcher.Constraint("Coincident", 9, 2, 10, 1),
    Sketcher.Constraint("Coincident", 10, 2, 11, 1),
    Sketcher.Constraint("Coincident", 11, 2, 8, 1),
    Sketcher.Constraint("Coincident", 12, 2, 13, 1),
    Sketcher.Constraint("Coincident", 13, 2, 14, 1),
    Sketcher.Constraint("Coincident", 14, 2, 15, 1),
    Sketcher.Constraint("Coincident", 15, 2, 12, 1),
    Sketcher.Constraint("Coincident", 16, 2, 17, 1),
    Sketcher.Constraint("Coincident", 17, 2, 18, 1),
    Sketcher.Constraint("Coincident", 18, 2, 19, 1),
    Sketcher.Constraint("Coincident", 19, 2, 16, 1),
    Sketcher.Constraint("Coincident", 20, 2, 21, 1),
    Sketcher.Constraint("Coincident", 21, 2, 22, 1),
    Sketcher.Constraint("Coincident", 22, 2, 23, 1),
    Sketcher.Constraint("Coincident", 23, 2, 20, 1),
    Sketcher.Constraint("Coincident", 24, 2, 25, 1),
    Sketcher.Constraint("Coincident", 25, 2, 26, 1),
    Sketcher.Constraint("Coincident", 26, 2, 27, 1),
    Sketcher.Constraint("Coincident", 27, 2, 24, 1),
    Sketcher.Constraint("Coincident", 28, 2, 29, 1),
    Sketcher.Constraint("Coincident", 29, 2, 30, 1),
    Sketcher.Constraint("Coincident", 30, 2, 31, 1),
    Sketcher.Constraint("Coincident", 31, 2, 28, 1),
    Sketcher.Constraint("Coincident", 32, 2, 33, 1),
    Sketcher.Constraint("Coincident", 33, 2, 34, 1),
    Sketcher.Constraint("Coincident", 34, 2, 35, 1),
    Sketcher.Constraint("Coincident", 35, 2, 32, 1),
    Sketcher.Constraint("Coincident", 36, 2, 37, 1),
    Sketcher.Constraint("Coincident", 37, 2, 38, 1),
    Sketcher.Constraint("Coincident", 38, 2, 39, 1),
    Sketcher.Constraint("Coincident", 39, 2, 36, 1),
    Sketcher.Constraint("Coincident", 40, 2, 41, 1),
    Sketcher.Constraint("Coincident", 41, 2, 42, 1),
    Sketcher.Constraint("Coincident", 42, 2, 43, 1),
    Sketcher.Constraint("Coincident", 43, 2, 40, 1),
    Sketcher.Constraint("Coincident", 44, 2, 45, 1),
    Sketcher.Constraint("Coincident", 45, 2, 46, 1),
    Sketcher.Constraint("Coincident", 46, 2, 47, 1),
    Sketcher.Constraint("Coincident", 47, 2, 44, 1),
    Sketcher.Constraint("Coincident", 48, 2, 49, 1),
    Sketcher.Constraint("Coincident", 49, 2, 50, 1),
    Sketcher.Constraint("Coincident", 50, 2, 51, 1),
    Sketcher.Constraint("Coincident", 51, 2, 48, 1),
    Sketcher.Constraint("Coincident", 52, 2, 53, 1),
    Sketcher.Constraint("Coincident", 53, 2, 54, 1),
    Sketcher.Constraint("Coincident", 54, 2, 55, 1),
    Sketcher.Constraint("Coincident", 55, 2, 52, 1),
    Sketcher.Constraint("Coincident", 56, 2, 57, 1),
    Sketcher.Constraint("Coincident", 57, 2, 58, 1),
    Sketcher.Constraint("Coincident", 58, 2, 59, 1),
    Sketcher.Constraint("Coincident", 59, 2, 56, 1),
    Sketcher.Constraint("Coincident", 60, 2, 61, 1),
    Sketcher.Constraint("Coincident", 61, 2, 62, 1),
    Sketcher.Constraint("Coincident", 62, 2, 63, 1),
    Sketcher.Constraint("Coincident", 63, 2, 60, 1),
    Sketcher.Constraint("Vertical", 0),
    Sketcher.Constraint("Horizontal", 1),
    Sketcher.Constraint("Vertical", 2),
    Sketcher.Constraint("Horizontal", 3),
    Sketcher.Constraint("Vertical", 4),
    Sketcher.Constraint("Horizontal", 5),
    Sketcher.Constraint("Vertical", 6),
    Sketcher.Constraint("Horizontal", 7),
    Sketcher.Constraint("Vertical", 8),
    Sketcher.Constraint("Horizontal", 9),
    Sketcher.Constraint("Vertical", 10),
    Sketcher.Constraint("Horizontal", 11),
    Sketcher.Constraint("Vertical", 12),
    Sketcher.Constraint("Horizontal", 13),
    Sketcher.Constraint("Vertical", 14),
    Sketcher.Constraint("Horizontal", 15),
    Sketcher.Constraint("Vertical", 16),
    Sketcher.Constraint("Horizontal", 17),
    Sketcher.Constraint("Vertical", 18),
    Sketcher.Constraint("Horizontal", 19),
    Sketcher.Constraint("Vertical", 20),
    Sketcher.Constraint("Horizontal", 21),
    Sketcher.Constraint("Vertical", 22),
    Sketcher.Constraint("Horizontal", 23),
    Sketcher.Constraint("Vertical", 24),
    Sketcher.Constraint("Horizontal", 25),
    Sketcher.Constraint("Vertical", 26),
    Sketcher.Constraint("Horizontal", 27),
    Sketcher.Constraint("Vertical", 28),
    Sketcher.Constraint("Horizontal", 29),
    Sketcher.Constraint("Vertical", 30),
    Sketcher.Constraint("Horizontal", 31),
    Sketcher.Constraint("Vertical", 32),
    Sketcher.Constraint("Horizontal", 33),
    Sketcher.Constraint("Vertical", 34),
    Sketcher.Constraint("Horizontal", 35),
    Sketcher.Constraint("Vertical", 36),
    Sketcher.Constraint("Horizontal", 37),
    Sketcher.Constraint("Vertical", 38),
    Sketcher.Constraint("Horizontal", 39),
    Sketcher.Constraint("Vertical", 40),
    Sketcher.Constraint("Horizontal", 41),
    Sketcher.Constraint("Vertical", 42),
    Sketcher.Constraint("Horizontal", 43),
    Sketcher.Constraint("Vertical", 44),
    Sketcher.Constraint("Horizontal", 45),
    Sketcher.Constraint("Vertical", 46),
    Sketcher.Constraint("Horizontal", 47),
    Sketcher.Constraint("Vertical", 48),
    Sketcher.Constraint("Horizontal", 49),
    Sketcher.Constraint("Vertical", 50),
    Sketcher.Constraint("Horizontal", 51),
    Sketcher.Constraint("Vertical", 52),
    Sketcher.Constraint("Horizontal", 53),
    Sketcher.Constraint("Vertical", 54),
    Sketcher.Constraint("Horizontal", 55),
    Sketcher.Constraint("Vertical", 56),
    Sketcher.Constraint("Horizontal", 57),
    Sketcher.Constraint("Vertical", 58),
    Sketcher.Constraint("Horizontal", 59),
    Sketcher.Constraint("Vertical", 60),
    Sketcher.Constraint("Horizontal", 61),
    Sketcher.Constraint("Vertical", 62),
    Sketcher.Constraint("Horizontal", 63),
    Sketcher.Constraint("Symmetric", 2, 2, 32, 2, -1, 1),
    Sketcher.Constraint("Symmetric", 0, 2, 34, 2, -1, 1),
    Sketcher.Constraint("Symmetric", 6, 2, 36, 2, -1, 1),
    Sketcher.Constraint("Symmetric", 4, 2, 38, 2, -1, 1),
    Sketcher.Constraint("Symmetric", 10, 2, 40, 2, -1, 1),
    Sketcher.Constraint("Symmetric", 8, 2, 42, 2, -1, 1),
    Sketcher.Constraint("Symmetric", 14, 2, 44, 2, -1, 1),
    Sketcher.Constraint("Symmetric", 12, 2, 46, 2, -1, 1),
    Sketcher.Constraint("Symmetric", 30, 2, 48, 2, -1, 1),
    Sketcher.Constraint("Symmetric", 28, 2, 50, 2, -1, 1),
    Sketcher.Constraint("Symmetric", 26, 2, 52, 2, -1, 1),
    Sketcher.Constraint("Symmetric", 24, 2, 54, 2, -1, 1),
    Sketcher.Constraint("Symmetric", 22, 2, 56, 2, -1, 1),
    Sketcher.Constraint("Symmetric", 20, 2, 58, 2, -1, 1),
    Sketcher.Constraint("Symmetric", 18, 2, 60, 2, -1, 1),
    Sketcher.Constraint("Symmetric", 16, 2, 62, 2, -1, 1),
    Sketcher.Constraint("Symmetric", 13, 2, 16, 2, -2),
    Sketcher.Constraint("Symmetric", 15, 2, 18, 2, -2),
    Sketcher.Constraint("Symmetric", 9, 2, 20, 2, -2),
    Sketcher.Constraint("Symmetric", 11, 2, 22, 2, -2),
    Sketcher.Constraint("Symmetric", 5, 2, 24, 2, -2),
    Sketcher.Constraint("Symmetric", 7, 2, 26, 2, -2),
    Sketcher.Constraint("Symmetric", 1, 2, 28, 2, -2),
    Sketcher.Constraint("Symmetric", 3, 2, 30, 2, -2),
    Sketcher.Constraint("Horizontal", 1, 2, 4, 2),
    Sketcher.Constraint("Horizontal", 3, 2, 6, 2),
    Sketcher.Constraint("Horizontal", 5, 2, 8, 2),
    Sketcher.Constraint("Horizontal", 7, 2, 10, 2),
    Sketcher.Constraint("Horizontal", 9, 2, 12, 2),
    Sketcher.Constraint("Horizontal", 11, 2, 14, 2),
    Sketcher.Constraint("Equal", 3, 5),
    Sketcher.Constraint("Equal", 7, 9),
    Sketcher.Constraint("Equal", 11, 13),
    Sketcher.Constraint("Equal", 63, 0),
    Sketcher.Constraint("DistanceX", 1, 1, 1, 2, Q("12 mm")),
    Sketcher.Constraint("DistanceY", -1, 1, 0, 2, Q("36.5 mm")),
    Sketcher.Constraint("DistanceX", 0, 2, -1, 1, Q("86.65 mm")),
    Sketcher.Constraint("DistanceX", 4, 2, -1, 1, Q("66.65 mm")),
    Sketcher.Constraint("DistanceX", 8, 2, -1, 1, Q("46.65 mm")),
    Sketcher.Constraint("DistanceX", 12, 2, -1, 1, Q("26.65 mm")),
])
pad4 = body.newObject("PartDesign::Pad", "Pad003")
pad4.Profile = sketch4
pad4.Length = 2.5

sketch5 = body.newObject("Sketcher::SketchObject", "Sketch004")
sketch5.AttachmentSupport = (doc.getObject("YZ_Plane"), [""])
sketch5.MapMode = "FlatFace"
sketch5.AttachmentOffset = App.Placement(App.Vector(0, 0, -103.15), App.Rotation())
sketch5.addGeometry([
    Part.LineSegment(App.Vector(16, -2, 0), App.Vector(16, -14, 0)),
    Part.LineSegment(App.Vector(16, -14, 0), App.Vector(4, -14, 0)),
    Part.LineSegment(App.Vector(4, -14, 0), App.Vector(4, -2, 0)),
    Part.LineSegment(App.Vector(4, -2, 0), App.Vector(16, -2, 0)),
    Part.LineSegment(App.Vector(-4, -2, 0), App.Vector(-4, -14, 0)),
    Part.LineSegment(App.Vector(-4, -14, 0), App.Vector(-16, -14, 0)),
    Part.LineSegment(App.Vector(-16, -14, 0), App.Vector(-16, -2, 0)),
    Part.LineSegment(App.Vector(-16, -2, 0), App.Vector(-4, -2, 0)),
], False)
sketch5.addConstraint([
    Sketcher.Constraint("Coincident", 0, 2, 1, 1),
    Sketcher.Constraint("Coincident", 1, 2, 2, 1),
    Sketcher.Constraint("Coincident", 2, 2, 3, 1),
    Sketcher.Constraint("Coincident", 3, 2, 0, 1),
    Sketcher.Constraint("Coincident", 4, 2, 5, 1),
    Sketcher.Constraint("Coincident", 5, 2, 6, 1),
    Sketcher.Constraint("Coincident", 6, 2, 7, 1),
    Sketcher.Constraint("Coincident", 7, 2, 4, 1),
    Sketcher.Constraint("Vertical", 0),
    Sketcher.Constraint("Horizontal", 1),
    Sketcher.Constraint("Vertical", 2),
    Sketcher.Constraint("Horizontal", 3),
    Sketcher.Constraint("Vertical", 4),
    Sketcher.Constraint("Horizontal", 5),
    Sketcher.Constraint("Vertical", 6),
    Sketcher.Constraint("Horizontal", 7),
    Sketcher.Constraint("Symmetric", 1, 2, 4, 2, -2),
    Sketcher.Constraint("Symmetric", 3, 2, 6, 2, -2),
    Sketcher.Constraint("Equal", 7, 0),
    Sketcher.Constraint("DistanceX", 1, 2, 1, 1, Q("12 mm")),
    Sketcher.Constraint("DistanceX", -1, 1, 0, 2, Q("16 mm")),
    Sketcher.Constraint("DistanceY", 0, 2, -1, 1, Q("13.5 mm")),
])
pad5 = body.newObject("PartDesign::Pad", "Pad004")
pad5.Profile = sketch5
pad5.Length = 2.5
pad5.Reversed = True

sketch6 = body.newObject("Sketcher::SketchObject", "Sketch005")
sketch6.AttachmentSupport = (doc.getObject("YZ_Plane"), [""])
sketch6.MapMode = "FlatFace"
sketch6.AttachmentOffset = App.Placement(App.Vector(0, 0, 103.15), App.Rotation())
sketch6.addGeometry([
    Part.LineSegment(App.Vector(-16, -2, 0), App.Vector(-16, -14, 0)),
    Part.LineSegment(App.Vector(-16, -14, 0), App.Vector(-4, -14, 0)),
    Part.LineSegment(App.Vector(-4, -14, 0), App.Vector(-4, -2, 0)),
    Part.LineSegment(App.Vector(-4, -2, 0), App.Vector(-16, -2, 0)),
    Part.LineSegment(App.Vector(4, -2, 0), App.Vector(4, -14, 0)),
    Part.LineSegment(App.Vector(4, -14, 0), App.Vector(16, -14, 0)),
    Part.LineSegment(App.Vector(16, -14, 0), App.Vector(16, -2, 0)),
    Part.LineSegment(App.Vector(16, -2, 0), App.Vector(4, -2, 0)),
], False)
sketch6.addConstraint([
    Sketcher.Constraint("Coincident", 0, 2, 1, 1),
    Sketcher.Constraint("Coincident", 1, 2, 2, 1),
    Sketcher.Constraint("Coincident", 2, 2, 3, 1),
    Sketcher.Constraint("Coincident", 3, 2, 0, 1),
    Sketcher.Constraint("Coincident", 4, 2, 5, 1),
    Sketcher.Constraint("Coincident", 5, 2, 6, 1),
    Sketcher.Constraint("Coincident", 6, 2, 7, 1),
    Sketcher.Constraint("Coincident", 7, 2, 4, 1),
    Sketcher.Constraint("Vertical", 0),
    Sketcher.Constraint("Horizontal", 1),
    Sketcher.Constraint("Vertical", 2),
    Sketcher.Constraint("Horizontal", 3),
    Sketcher.Constraint("Vertical", 4),
    Sketcher.Constraint("Horizontal", 5),
    Sketcher.Constraint("Vertical", 6),
    Sketcher.Constraint("Horizontal", 7),
    Sketcher.Constraint("Symmetric", 1, 2, 4, 2, -2),
    Sketcher.Constraint("Symmetric", 3, 2, 6, 2, -2),
    Sketcher.Constraint("Equal", 7, 0),
    Sketcher.Constraint("DistanceX", 1, 1, 1, 2, Q("12 mm")),
    Sketcher.Constraint("DistanceX", 0, 2, -1, 1, Q("16 mm")),
    Sketcher.Constraint("DistanceY", 0, 2, -1, 1, Q("13.5 mm")),
])
pad6 = body.newObject("PartDesign::Pad", "Pad005")
pad6.Profile = sketch6
pad6.Length = 2.5

sketch7 = body.newObject("Sketcher::SketchObject", "Sketch006")
sketch7.AttachmentSupport = (doc.getObject("XZ_Plane"), [""])
sketch7.MapMode = "FlatFace"
sketch7.AttachmentOffset = App.Placement(App.Vector(0, 0, -50), App.Rotation())
sketch7.addGeometry([
    Part.LineSegment(App.Vector(43, -2, 0), App.Vector(43, -14, 0)),
    Part.LineSegment(App.Vector(43, -14, 0), App.Vector(31, -14, 0)),
    Part.LineSegment(App.Vector(31, -14, 0), App.Vector(31, -2, 0)),
    Part.LineSegment(App.Vector(31, -2, 0), App.Vector(43, -2, 0)),
    Part.LineSegment(App.Vector(63, -2, 0), App.Vector(63, -14, 0)),
    Part.LineSegment(App.Vector(63, -14, 0), App.Vector(51, -14, 0)),
    Part.LineSegment(App.Vector(51, -14, 0), App.Vector(51, -2, 0)),
    Part.LineSegment(App.Vector(51, -2, 0), App.Vector(63, -2, 0)),
    Part.LineSegment(App.Vector(-31, -2, 0), App.Vector(-31, -14, 0)),
    Part.LineSegment(App.Vector(-31, -14, 0), App.Vector(-43, -14, 0)),
    Part.LineSegment(App.Vector(-43, -14, 0), App.Vector(-43, -2, 0)),
    Part.LineSegment(App.Vector(-43, -2, 0), App.Vector(-31, -2, 0)),
    Part.LineSegment(App.Vector(-51, -2, 0), App.Vector(-51, -14, 0)),
    Part.LineSegment(App.Vector(-51, -14, 0), App.Vector(-63, -14, 0)),
    Part.LineSegment(App.Vector(-63, -14, 0), App.Vector(-63, -2, 0)),
    Part.LineSegment(App.Vector(-63, -2, 0), App.Vector(-51, -2, 0)),
], False)
sketch7.addConstraint([
    Sketcher.Constraint("Coincident", 0, 2, 1, 1),
    Sketcher.Constraint("Coincident", 1, 2, 2, 1),
    Sketcher.Constraint("Coincident", 2, 2, 3, 1),
    Sketcher.Constraint("Coincident", 3, 2, 0, 1),
    Sketcher.Constraint("Coincident", 4, 2, 5, 1),
    Sketcher.Constraint("Coincident", 5, 2, 6, 1),
    Sketcher.Constraint("Coincident", 6, 2, 7, 1),
    Sketcher.Constraint("Coincident", 7, 2, 4, 1),
    Sketcher.Constraint("Coincident", 8, 2, 9, 1),
    Sketcher.Constraint("Coincident", 9, 2, 10, 1),
    Sketcher.Constraint("Coincident", 10, 2, 11, 1),
    Sketcher.Constraint("Coincident", 11, 2, 8, 1),
    Sketcher.Constraint("Coincident", 12, 2, 13, 1),
    Sketcher.Constraint("Coincident", 13, 2, 14, 1),
    Sketcher.Constraint("Coincident", 14, 2, 15, 1),
    Sketcher.Constraint("Coincident", 15, 2, 12, 1),
    Sketcher.Constraint("Vertical", 0),
    Sketcher.Constraint("Horizontal", 1),
    Sketcher.Constraint("Vertical", 2),
    Sketcher.Constraint("Horizontal", 3),
    Sketcher.Constraint("Vertical", 4),
    Sketcher.Constraint("Horizontal", 5),
    Sketcher.Constraint("Vertical", 6),
    Sketcher.Constraint("Horizontal", 7),
    Sketcher.Constraint("Vertical", 8),
    Sketcher.Constraint("Horizontal", 9),
    Sketcher.Constraint("Vertical", 10),
    Sketcher.Constraint("Horizontal", 11),
    Sketcher.Constraint("Vertical", 12),
    Sketcher.Constraint("Horizontal", 13),
    Sketcher.Constraint("Vertical", 14),
    Sketcher.Constraint("Horizontal", 15),
    Sketcher.Constraint("Symmetric", 1, 2, 8, 2, -2),
    Sketcher.Constraint("Symmetric", 3, 2, 10, 2, -2),
    Sketcher.Constraint("Symmetric", 5, 2, 12, 2, -2),
    Sketcher.Constraint("Symmetric", 7, 2, 14, 2, -2),
    Sketcher.Constraint("Horizontal", 1, 2, 4, 2),
    Sketcher.Constraint("Horizontal", 3, 2, 6, 2),
    Sketcher.Constraint("Equal", 3, 5),
    Sketcher.Constraint("Equal", 15, 0),
    Sketcher.Constraint("DistanceX", 1, 2, 1, 1, Q("12 mm")),
    Sketcher.Constraint("DistanceX", 0, 2, 4, 2, Q("20 mm")),
    Sketcher.Constraint("DistanceY", 0, 2, -1, 1, Q("13.5 mm")),
    Sketcher.Constraint("DistanceX", 8, 2, 1, 2, Q("62.3 mm")),
])
pad7 = body.newObject("PartDesign::Pad", "Pad006")
pad7.Profile = sketch7
pad7.Length = 2.5
pad7.Reversed = True

sketch8 = body.newObject("Sketcher::SketchObject", "Sketch007")
sketch8.AttachmentSupport = (doc.getObject("XZ_Plane"), [""])
sketch8.MapMode = "FlatFace"
sketch8.AttachmentOffset = App.Placement(App.Vector(0, 0, 50), App.Rotation())
sketch8.addGeometry([
    Part.LineSegment(App.Vector(-63, -2, 0), App.Vector(-63, -14, 0)),
    Part.LineSegment(App.Vector(-63, -14, 0), App.Vector(-51, -14, 0)),
    Part.LineSegment(App.Vector(-51, -14, 0), App.Vector(-51, -2, 0)),
    Part.LineSegment(App.Vector(-51, -2, 0), App.Vector(-63, -2, 0)),
    Part.LineSegment(App.Vector(-43, -2, 0), App.Vector(-43, -14, 0)),
    Part.LineSegment(App.Vector(-43, -14, 0), App.Vector(-31, -14, 0)),
    Part.LineSegment(App.Vector(-31, -14, 0), App.Vector(-31, -2, 0)),
    Part.LineSegment(App.Vector(-31, -2, 0), App.Vector(-43, -2, 0)),
    Part.LineSegment(App.Vector(31, -2, 0), App.Vector(31, -14, 0)),
    Part.LineSegment(App.Vector(31, -14, 0), App.Vector(43, -14, 0)),
    Part.LineSegment(App.Vector(43, -14, 0), App.Vector(43, -2, 0)),
    Part.LineSegment(App.Vector(43, -2, 0), App.Vector(31, -2, 0)),
    Part.LineSegment(App.Vector(51, -2, 0), App.Vector(51, -14, 0)),
    Part.LineSegment(App.Vector(51, -14, 0), App.Vector(63, -14, 0)),
    Part.LineSegment(App.Vector(63, -14, 0), App.Vector(63, -2, 0)),
    Part.LineSegment(App.Vector(63, -2, 0), App.Vector(51, -2, 0)),
], False)
sketch8.addConstraint([
    Sketcher.Constraint("Coincident", 0, 2, 1, 1),
    Sketcher.Constraint("Coincident", 1, 2, 2, 1),
    Sketcher.Constraint("Coincident", 2, 2, 3, 1),
    Sketcher.Constraint("Coincident", 3, 2, 0, 1),
    Sketcher.Constraint("Coincident", 4, 2, 5, 1),
    Sketcher.Constraint("Coincident", 5, 2, 6, 1),
    Sketcher.Constraint("Coincident", 6, 2, 7, 1),
    Sketcher.Constraint("Coincident", 7, 2, 4, 1),
    Sketcher.Constraint("Coincident", 8, 2, 9, 1),
    Sketcher.Constraint("Coincident", 9, 2, 10, 1),
    Sketcher.Constraint("Coincident", 10, 2, 11, 1),
    Sketcher.Constraint("Coincident", 11, 2, 8, 1),
    Sketcher.Constraint("Coincident", 12, 2, 13, 1),
    Sketcher.Constraint("Coincident", 13, 2, 14, 1),
    Sketcher.Constraint("Coincident", 14, 2, 15, 1),
    Sketcher.Constraint("Coincident", 15, 2, 12, 1),
    Sketcher.Constraint("Vertical", 0),
    Sketcher.Constraint("Horizontal", 1),
    Sketcher.Constraint("Vertical", 2),
    Sketcher.Constraint("Horizontal", 3),
    Sketcher.Constraint("Vertical", 4),
    Sketcher.Constraint("Horizontal", 5),
    Sketcher.Constraint("Vertical", 6),
    Sketcher.Constraint("Horizontal", 7),
    Sketcher.Constraint("Vertical", 8),
    Sketcher.Constraint("Horizontal", 9),
    Sketcher.Constraint("Vertical", 10),
    Sketcher.Constraint("Horizontal", 11),
    Sketcher.Constraint("Vertical", 12),
    Sketcher.Constraint("Horizontal", 13),
    Sketcher.Constraint("Vertical", 14),
    Sketcher.Constraint("Horizontal", 15),
    Sketcher.Constraint("Symmetric", 5, 2, 8, 2, -2),
    Sketcher.Constraint("Symmetric", 7, 2, 10, 2, -2),
    Sketcher.Constraint("Symmetric", 1, 2, 12, 2, -2),
    Sketcher.Constraint("Symmetric", 3, 2, 14, 2, -2),
    Sketcher.Constraint("Horizontal", 1, 2, 4, 2),
    Sketcher.Constraint("Horizontal", 3, 2, 6, 2),
    Sketcher.Constraint("Equal", 3, 5),
    Sketcher.Constraint("Equal", 15, 0),
    Sketcher.Constraint("DistanceX", 1, 1, 1, 2, Q("12 mm")),
    Sketcher.Constraint("DistanceX", 1, 2, 4, 2, Q("8 mm")),
    Sketcher.Constraint("DistanceY", 0, 2, -1, 1, Q("13.5 mm")),
    Sketcher.Constraint("DistanceX", 5, 2, 8, 2, Q("62.3 mm")),
])
pad8 = body.newObject("PartDesign::Pad", "Pad007")
pad8.Profile = sketch8
pad8.Length = 2.5

doc.recompute()
